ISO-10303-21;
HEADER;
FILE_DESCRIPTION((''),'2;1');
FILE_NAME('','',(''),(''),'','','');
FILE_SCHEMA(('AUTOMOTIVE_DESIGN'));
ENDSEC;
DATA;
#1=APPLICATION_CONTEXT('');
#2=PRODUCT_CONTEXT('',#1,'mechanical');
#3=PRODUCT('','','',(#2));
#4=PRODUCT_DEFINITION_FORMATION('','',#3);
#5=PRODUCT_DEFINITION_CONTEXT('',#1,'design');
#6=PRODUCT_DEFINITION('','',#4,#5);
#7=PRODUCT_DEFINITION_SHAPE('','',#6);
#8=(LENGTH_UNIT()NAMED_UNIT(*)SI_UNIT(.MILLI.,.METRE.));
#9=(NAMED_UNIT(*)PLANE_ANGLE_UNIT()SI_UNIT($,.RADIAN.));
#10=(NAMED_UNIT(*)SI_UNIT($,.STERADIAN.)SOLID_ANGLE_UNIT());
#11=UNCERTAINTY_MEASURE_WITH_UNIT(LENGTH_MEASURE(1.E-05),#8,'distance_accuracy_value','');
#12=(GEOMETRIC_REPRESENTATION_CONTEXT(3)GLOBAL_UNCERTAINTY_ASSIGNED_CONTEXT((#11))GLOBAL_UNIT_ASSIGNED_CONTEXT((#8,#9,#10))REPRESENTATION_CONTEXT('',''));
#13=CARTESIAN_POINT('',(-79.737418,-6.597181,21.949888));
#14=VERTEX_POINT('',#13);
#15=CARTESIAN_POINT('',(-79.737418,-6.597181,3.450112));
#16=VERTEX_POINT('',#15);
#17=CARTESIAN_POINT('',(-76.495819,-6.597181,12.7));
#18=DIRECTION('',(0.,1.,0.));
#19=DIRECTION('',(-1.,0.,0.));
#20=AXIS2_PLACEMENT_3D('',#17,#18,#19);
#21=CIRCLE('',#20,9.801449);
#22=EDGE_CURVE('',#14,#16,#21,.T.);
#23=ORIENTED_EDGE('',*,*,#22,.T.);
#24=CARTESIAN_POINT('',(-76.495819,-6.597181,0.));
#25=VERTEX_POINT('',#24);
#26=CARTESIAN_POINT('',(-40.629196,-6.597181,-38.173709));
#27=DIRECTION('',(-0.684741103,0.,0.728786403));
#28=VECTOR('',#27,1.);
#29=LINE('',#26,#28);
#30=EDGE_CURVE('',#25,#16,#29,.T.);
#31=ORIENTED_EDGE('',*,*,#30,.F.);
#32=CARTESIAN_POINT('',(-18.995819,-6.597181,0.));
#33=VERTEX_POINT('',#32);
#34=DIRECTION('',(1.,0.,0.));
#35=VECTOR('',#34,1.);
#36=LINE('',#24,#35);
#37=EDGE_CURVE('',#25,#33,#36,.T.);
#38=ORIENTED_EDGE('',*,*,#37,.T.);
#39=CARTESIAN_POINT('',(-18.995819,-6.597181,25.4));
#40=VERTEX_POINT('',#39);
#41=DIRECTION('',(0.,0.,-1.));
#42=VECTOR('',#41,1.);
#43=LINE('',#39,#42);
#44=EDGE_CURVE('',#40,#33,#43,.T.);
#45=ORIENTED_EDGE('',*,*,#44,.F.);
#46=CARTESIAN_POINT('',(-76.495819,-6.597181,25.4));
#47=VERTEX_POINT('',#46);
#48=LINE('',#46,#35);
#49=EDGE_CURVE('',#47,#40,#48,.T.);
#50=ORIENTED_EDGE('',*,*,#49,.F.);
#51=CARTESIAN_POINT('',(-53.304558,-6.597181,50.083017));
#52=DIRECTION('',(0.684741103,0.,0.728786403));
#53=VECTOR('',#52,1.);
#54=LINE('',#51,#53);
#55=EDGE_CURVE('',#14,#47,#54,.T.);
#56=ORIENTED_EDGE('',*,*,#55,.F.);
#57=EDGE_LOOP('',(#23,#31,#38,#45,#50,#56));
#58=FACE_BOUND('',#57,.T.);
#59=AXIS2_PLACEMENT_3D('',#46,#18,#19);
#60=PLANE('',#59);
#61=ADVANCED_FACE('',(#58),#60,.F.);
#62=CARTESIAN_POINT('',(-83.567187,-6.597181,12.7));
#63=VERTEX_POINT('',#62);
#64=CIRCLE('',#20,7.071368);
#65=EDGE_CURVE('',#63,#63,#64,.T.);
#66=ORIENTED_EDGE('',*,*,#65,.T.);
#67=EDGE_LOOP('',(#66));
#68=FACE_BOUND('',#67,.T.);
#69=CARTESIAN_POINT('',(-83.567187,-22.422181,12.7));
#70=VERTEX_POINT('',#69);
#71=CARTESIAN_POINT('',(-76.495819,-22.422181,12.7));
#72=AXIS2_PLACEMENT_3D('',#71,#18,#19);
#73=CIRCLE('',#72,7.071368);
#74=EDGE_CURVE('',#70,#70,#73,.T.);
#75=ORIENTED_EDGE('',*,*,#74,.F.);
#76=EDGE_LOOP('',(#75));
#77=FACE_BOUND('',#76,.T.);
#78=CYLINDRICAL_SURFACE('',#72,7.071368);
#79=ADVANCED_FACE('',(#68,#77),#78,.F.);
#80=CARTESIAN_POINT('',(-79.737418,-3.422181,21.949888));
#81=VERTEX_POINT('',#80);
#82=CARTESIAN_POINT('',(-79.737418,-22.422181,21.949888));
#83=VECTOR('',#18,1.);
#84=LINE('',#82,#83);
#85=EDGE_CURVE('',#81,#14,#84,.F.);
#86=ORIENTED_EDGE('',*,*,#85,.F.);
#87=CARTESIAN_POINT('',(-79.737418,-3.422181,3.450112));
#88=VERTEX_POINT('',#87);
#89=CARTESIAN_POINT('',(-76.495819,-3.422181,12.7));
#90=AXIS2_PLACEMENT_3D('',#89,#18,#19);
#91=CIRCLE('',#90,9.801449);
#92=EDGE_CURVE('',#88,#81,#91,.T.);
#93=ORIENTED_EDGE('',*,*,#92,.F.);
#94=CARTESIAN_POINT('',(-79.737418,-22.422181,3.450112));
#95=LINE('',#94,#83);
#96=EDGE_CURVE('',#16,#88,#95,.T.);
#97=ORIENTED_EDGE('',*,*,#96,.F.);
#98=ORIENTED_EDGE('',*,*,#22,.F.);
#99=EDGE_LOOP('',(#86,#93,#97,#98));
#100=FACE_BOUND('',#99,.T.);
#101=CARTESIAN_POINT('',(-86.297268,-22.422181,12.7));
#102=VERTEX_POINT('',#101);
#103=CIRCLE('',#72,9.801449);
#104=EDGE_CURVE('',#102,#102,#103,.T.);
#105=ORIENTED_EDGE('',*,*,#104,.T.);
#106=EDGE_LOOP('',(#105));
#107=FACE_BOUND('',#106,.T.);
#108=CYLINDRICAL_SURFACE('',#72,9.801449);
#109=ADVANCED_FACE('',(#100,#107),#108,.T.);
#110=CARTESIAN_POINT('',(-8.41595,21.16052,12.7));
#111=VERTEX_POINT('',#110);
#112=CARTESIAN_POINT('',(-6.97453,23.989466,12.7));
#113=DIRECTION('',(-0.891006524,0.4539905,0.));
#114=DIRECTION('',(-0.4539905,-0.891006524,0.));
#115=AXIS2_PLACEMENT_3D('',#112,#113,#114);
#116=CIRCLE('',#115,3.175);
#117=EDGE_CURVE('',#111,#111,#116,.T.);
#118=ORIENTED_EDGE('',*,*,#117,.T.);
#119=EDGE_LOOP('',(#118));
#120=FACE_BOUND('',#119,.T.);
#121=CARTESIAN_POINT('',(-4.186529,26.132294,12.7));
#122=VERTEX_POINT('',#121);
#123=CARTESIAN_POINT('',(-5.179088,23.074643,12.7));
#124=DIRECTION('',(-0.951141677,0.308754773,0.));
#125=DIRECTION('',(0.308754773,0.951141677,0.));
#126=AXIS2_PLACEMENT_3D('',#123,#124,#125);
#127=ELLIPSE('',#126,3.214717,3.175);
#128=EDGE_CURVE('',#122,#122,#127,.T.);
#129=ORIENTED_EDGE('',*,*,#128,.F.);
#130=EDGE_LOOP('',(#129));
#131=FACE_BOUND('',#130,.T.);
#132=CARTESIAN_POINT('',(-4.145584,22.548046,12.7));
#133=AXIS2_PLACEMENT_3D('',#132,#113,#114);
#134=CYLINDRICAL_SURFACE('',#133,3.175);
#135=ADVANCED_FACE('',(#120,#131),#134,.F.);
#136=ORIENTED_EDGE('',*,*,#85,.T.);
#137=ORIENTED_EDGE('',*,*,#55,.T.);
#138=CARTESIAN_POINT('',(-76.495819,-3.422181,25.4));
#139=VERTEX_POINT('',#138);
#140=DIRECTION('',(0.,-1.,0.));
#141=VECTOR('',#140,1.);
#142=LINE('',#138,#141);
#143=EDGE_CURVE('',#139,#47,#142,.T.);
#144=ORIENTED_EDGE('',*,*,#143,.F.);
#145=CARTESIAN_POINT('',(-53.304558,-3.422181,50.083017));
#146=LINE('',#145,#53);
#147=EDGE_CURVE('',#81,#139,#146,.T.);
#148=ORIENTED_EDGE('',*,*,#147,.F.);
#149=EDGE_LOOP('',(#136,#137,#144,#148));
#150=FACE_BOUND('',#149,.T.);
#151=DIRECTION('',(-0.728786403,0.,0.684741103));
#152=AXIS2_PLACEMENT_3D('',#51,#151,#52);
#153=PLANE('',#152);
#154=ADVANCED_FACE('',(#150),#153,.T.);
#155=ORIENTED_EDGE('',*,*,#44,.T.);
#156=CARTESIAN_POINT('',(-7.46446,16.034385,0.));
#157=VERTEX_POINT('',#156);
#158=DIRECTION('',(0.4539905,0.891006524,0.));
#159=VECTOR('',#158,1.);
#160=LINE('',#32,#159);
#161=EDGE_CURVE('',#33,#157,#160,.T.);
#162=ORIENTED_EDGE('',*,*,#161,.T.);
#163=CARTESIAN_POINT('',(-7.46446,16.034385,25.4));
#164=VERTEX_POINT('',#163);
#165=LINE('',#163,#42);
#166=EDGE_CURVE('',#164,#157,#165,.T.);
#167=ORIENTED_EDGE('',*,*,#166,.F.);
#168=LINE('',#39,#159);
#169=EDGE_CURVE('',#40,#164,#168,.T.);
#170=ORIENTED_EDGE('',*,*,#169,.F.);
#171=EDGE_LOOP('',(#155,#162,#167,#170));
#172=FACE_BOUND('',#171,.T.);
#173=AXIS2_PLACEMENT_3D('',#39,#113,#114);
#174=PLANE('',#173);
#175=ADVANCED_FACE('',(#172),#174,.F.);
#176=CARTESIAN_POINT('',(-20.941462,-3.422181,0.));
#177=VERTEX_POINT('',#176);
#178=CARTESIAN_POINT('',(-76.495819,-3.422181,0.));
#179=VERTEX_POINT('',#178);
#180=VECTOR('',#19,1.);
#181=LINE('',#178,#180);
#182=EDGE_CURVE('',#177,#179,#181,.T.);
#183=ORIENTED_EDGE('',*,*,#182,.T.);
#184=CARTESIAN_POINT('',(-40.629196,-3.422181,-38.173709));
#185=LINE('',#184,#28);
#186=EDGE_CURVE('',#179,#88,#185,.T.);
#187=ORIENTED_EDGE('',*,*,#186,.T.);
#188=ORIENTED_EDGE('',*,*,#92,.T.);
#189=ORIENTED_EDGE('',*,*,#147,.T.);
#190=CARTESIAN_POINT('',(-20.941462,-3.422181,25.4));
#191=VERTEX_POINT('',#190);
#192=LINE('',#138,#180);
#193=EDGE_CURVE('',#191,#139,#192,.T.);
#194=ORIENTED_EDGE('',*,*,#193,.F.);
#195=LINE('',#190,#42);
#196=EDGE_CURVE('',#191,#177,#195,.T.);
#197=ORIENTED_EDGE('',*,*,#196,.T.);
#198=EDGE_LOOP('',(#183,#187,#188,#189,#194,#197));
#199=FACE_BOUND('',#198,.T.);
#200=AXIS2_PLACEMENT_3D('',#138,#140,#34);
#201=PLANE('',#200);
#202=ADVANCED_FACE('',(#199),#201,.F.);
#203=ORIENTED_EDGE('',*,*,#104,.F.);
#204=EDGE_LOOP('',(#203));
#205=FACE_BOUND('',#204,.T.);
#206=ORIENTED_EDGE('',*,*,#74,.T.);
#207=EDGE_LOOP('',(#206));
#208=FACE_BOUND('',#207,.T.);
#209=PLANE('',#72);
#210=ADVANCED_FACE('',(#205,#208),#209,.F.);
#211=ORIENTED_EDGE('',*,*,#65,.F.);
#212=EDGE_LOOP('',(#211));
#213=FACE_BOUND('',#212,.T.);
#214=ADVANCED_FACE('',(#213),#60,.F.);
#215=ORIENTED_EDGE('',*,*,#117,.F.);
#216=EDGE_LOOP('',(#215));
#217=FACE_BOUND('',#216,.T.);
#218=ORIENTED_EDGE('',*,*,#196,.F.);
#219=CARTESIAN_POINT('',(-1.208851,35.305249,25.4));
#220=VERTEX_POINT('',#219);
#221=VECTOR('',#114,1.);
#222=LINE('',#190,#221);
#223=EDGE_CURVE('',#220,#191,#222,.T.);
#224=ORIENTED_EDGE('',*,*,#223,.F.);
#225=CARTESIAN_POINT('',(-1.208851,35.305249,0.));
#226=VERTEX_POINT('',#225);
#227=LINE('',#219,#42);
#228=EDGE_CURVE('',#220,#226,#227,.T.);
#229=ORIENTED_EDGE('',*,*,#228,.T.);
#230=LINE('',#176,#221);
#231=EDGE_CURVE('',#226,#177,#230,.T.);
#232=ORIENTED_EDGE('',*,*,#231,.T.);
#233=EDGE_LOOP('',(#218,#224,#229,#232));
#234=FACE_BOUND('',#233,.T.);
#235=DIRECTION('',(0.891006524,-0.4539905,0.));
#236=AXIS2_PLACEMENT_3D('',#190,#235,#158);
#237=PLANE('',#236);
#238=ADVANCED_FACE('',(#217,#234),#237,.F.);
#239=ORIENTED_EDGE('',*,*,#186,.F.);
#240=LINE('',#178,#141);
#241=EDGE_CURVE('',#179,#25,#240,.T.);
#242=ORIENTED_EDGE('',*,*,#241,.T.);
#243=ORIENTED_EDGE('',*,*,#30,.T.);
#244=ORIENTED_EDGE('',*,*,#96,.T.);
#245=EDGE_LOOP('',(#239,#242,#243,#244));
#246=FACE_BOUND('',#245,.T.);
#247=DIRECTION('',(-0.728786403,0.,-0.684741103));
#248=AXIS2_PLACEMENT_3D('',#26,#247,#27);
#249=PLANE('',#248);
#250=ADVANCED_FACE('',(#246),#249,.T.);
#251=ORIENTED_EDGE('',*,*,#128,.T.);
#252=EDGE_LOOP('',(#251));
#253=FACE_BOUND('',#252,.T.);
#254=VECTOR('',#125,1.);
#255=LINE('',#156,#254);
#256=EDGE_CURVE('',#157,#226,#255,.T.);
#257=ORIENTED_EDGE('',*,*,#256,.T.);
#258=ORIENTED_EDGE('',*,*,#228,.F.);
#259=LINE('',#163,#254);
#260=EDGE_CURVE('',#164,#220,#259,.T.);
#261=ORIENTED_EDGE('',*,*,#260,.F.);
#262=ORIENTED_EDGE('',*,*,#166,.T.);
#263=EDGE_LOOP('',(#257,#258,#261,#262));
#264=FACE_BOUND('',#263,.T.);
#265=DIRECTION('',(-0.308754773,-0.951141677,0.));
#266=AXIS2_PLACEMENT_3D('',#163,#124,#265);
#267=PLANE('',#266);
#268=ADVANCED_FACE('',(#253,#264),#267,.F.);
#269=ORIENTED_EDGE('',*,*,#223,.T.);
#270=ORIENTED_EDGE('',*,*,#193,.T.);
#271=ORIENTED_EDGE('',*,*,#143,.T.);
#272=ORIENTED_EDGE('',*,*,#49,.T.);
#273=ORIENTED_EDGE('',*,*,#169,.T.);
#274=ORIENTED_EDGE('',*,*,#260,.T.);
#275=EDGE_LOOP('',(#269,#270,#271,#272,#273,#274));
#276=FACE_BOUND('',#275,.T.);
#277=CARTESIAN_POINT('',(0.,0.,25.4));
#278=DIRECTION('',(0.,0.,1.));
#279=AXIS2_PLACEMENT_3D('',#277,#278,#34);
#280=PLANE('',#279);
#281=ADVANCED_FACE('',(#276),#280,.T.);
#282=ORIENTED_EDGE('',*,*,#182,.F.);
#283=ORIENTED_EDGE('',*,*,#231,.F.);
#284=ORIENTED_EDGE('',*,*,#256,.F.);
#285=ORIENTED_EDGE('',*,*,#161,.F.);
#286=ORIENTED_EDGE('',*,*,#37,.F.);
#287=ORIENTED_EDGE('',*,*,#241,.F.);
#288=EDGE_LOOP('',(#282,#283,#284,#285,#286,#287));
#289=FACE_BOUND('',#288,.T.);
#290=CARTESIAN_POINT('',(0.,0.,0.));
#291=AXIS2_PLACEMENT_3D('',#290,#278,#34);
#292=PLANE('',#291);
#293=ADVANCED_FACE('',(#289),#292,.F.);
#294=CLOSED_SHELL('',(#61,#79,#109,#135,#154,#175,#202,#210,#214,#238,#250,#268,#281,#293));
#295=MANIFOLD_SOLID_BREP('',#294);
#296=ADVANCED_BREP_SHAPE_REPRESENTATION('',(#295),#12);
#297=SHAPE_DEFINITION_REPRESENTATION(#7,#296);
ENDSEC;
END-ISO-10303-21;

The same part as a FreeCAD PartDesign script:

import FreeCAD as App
import Part
import Sketcher

V = App.Vector
Q = App.Units.Quantity


def add_polygon(sketch, points):
    """Adds a closed chain of lines whose ends are joined by coincident constraints."""
    first, n = sketch.GeometryCount, len(points)
    for a, b in zip(points, points[1:] + points[:1]):
        sketch.addGeometry(Part.LineSegment(App.Vector(*a, 0), App.Vector(*b, 0)), False)
    for i in range(n):
        sketch.addConstraint(Sketcher.Constraint("Coincident", first + i, 2, first + (i + 1) % n, 1))

doc = App.newDocument("Part")
body = doc.addObject("PartDesign::Body", "Body")

# Sketch on XY plane
sketch1 = body.newObject("Sketcher::SketchObject", "Sketch")
sketch1.AttachmentSupport = (doc.getObject("XY_Plane"), [""])
sketch1.MapMode = "FlatFace"
add_polygon(sketch1, [(-20.9, -3.4), (-76.5, -3.4), (-76.5, -6.6), (-19, -6.6), (-7.5, 16), (-1.2, 35.3)])  # lines 0-5
sketch1.addConstraint([
    Sketcher.Constraint("Horizontal", 0),
    Sketcher.Constraint("Vertical", 1),
    Sketcher.Constraint("Horizontal", 2),
    Sketcher.Constraint("Parallel", 3, 5),
    Sketcher.Constraint("Distance", 3, Q("1 in")),
    Sketcher.Constraint("Angle", 3, Q("63 deg")),
    Sketcher.Constraint("DistanceY", 1, 2, 1, 1, Q("0.125 in")),
    Sketcher.Constraint("DistanceX", 2, 1, 2, 2, 57.5),
    Sketcher.Constraint("DistanceX", 5, 2, 2, 2, Q("0.0766001 in")),
    Sketcher.Constraint("Distance", 4, 20.260771),
    Sketcher.Constraint("DistanceX", 0, 2, -1, 1, 76.495819),
    Sketcher.Constraint("DistanceY", 0, 2, -1, 1, 3.422181),
])
pad1 = body.newObject("PartDesign::Pad", "Pad")
pad1.Profile = sketch1
pad1.Length = Q("1 in")

# Sketch on XZ plane
sketch2 = body.newObject("Sketcher::SketchObject", "Sketch001")
sketch2.AttachmentSupport = (doc.getObject("XZ_Plane"), [""])
sketch2.MapMode = "FlatFace"
sketch2.AttachmentOffset = App.Placement(V(0, 0, 3.422181), App.Rotation())
sketch2.addGeometry([
    Part.Circle(V(-76, 13, 0), V(0, 0, 1), 10),
    Part.Circle(V(-76, 13, 0), V(0, 0, 1), 7),
], False)
sketch2.addConstraint([
    Sketcher.Constraint("Coincident", 1, 3, 0, 3),
    Sketcher.Constraint("DistanceY", -1, 1, 0, 3, Q("0.5 in")),
    Sketcher.Constraint("Diameter", 0, 19.602897),
    Sketcher.Constraint("Diameter", 1, 14.142736),
    Sketcher.Constraint("DistanceX", 0, 3, -1, 1, 76.495819),
])
pad2 = body.newObject("PartDesign::Pad", "Pad001")
pad2.Profile = sketch2
pad2.Length = 19

# Sketch on XZ plane
sketch3 = body.newObject("Sketcher::SketchObject", "Sketch002")
sketch3.AttachmentSupport = (doc.getObject("XZ_Plane"), [""])
sketch3.MapMode = "FlatFace"
sketch3.AttachmentOffset = App.Placement(V(0, 0, 3.422181), App.Rotation())
add_polygon(sketch3, [(-76.5, 25.4), (-76.5, 0), (-85.9, 10), (-86.3, 12.7), (-85.9, 15.4)])  # lines 0-4
sketch3.addConstraint([
    Sketcher.Constraint("Vertical", 0),
    Sketcher.Constraint("PointOnObject", 0, 2, -1),
    Sketcher.Constraint("Vertical", 1, 2, 3, 2),
    Sketcher.Constraint("Equal", 2, 3),
    Sketcher.Constraint("Equal", 1, 4),
    Sketcher.Constraint("DistanceY", 0, 2, 0, 1, Q("1 in")),
    Sketcher.Constraint("DistanceX", 0, 2, -1, 1, 76.495819),
    Sketcher.Constraint("DistanceY", -1, 1, 1, 2, 10.040581),
    Sketcher.Constraint("DistanceX", 2, 2, 0, 2, 9.801449),
    Sketcher.Constraint("Distance", 1, 13.777124),
])
pad3 = body.newObject("PartDesign::Pad", "Pad002")
pad3.Profile = sketch3
pad3.Length = Q("0.125 in")

# Sketch on an angled plane
sketch4 = body.newObject("Sketcher::SketchObject", "Sketch003")
sketch4.Placement = App.Placement(V(-15.240971, 7.765663, 0), App.Rotation(V(0, 0, 1), V(0.4539905, 0.891006524, 0), V(-0.891006524, 0.4539905, 0), "ZXY"))
sketch4.addGeometry(Part.Circle(V(12.7, 18.2, 0), V(0, 0, 1), 3.2), False)
sketch4.addConstraint([
    Sketcher.Constraint("Diameter", 0, Q("0.25 in")),
    Sketcher.Constraint("DistanceX", -1, 1, 0, 3, Q("0.5 in")),
    Sketcher.Constraint("DistanceY", -1, 1, 0, 3, 18.208401),
])
pocket1 = body.newObject("PartDesign::Pocket", "Pocket")
pocket1.Profile = sketch4
pocket1.Length = Q("0.125 in")

doc.recompute()
